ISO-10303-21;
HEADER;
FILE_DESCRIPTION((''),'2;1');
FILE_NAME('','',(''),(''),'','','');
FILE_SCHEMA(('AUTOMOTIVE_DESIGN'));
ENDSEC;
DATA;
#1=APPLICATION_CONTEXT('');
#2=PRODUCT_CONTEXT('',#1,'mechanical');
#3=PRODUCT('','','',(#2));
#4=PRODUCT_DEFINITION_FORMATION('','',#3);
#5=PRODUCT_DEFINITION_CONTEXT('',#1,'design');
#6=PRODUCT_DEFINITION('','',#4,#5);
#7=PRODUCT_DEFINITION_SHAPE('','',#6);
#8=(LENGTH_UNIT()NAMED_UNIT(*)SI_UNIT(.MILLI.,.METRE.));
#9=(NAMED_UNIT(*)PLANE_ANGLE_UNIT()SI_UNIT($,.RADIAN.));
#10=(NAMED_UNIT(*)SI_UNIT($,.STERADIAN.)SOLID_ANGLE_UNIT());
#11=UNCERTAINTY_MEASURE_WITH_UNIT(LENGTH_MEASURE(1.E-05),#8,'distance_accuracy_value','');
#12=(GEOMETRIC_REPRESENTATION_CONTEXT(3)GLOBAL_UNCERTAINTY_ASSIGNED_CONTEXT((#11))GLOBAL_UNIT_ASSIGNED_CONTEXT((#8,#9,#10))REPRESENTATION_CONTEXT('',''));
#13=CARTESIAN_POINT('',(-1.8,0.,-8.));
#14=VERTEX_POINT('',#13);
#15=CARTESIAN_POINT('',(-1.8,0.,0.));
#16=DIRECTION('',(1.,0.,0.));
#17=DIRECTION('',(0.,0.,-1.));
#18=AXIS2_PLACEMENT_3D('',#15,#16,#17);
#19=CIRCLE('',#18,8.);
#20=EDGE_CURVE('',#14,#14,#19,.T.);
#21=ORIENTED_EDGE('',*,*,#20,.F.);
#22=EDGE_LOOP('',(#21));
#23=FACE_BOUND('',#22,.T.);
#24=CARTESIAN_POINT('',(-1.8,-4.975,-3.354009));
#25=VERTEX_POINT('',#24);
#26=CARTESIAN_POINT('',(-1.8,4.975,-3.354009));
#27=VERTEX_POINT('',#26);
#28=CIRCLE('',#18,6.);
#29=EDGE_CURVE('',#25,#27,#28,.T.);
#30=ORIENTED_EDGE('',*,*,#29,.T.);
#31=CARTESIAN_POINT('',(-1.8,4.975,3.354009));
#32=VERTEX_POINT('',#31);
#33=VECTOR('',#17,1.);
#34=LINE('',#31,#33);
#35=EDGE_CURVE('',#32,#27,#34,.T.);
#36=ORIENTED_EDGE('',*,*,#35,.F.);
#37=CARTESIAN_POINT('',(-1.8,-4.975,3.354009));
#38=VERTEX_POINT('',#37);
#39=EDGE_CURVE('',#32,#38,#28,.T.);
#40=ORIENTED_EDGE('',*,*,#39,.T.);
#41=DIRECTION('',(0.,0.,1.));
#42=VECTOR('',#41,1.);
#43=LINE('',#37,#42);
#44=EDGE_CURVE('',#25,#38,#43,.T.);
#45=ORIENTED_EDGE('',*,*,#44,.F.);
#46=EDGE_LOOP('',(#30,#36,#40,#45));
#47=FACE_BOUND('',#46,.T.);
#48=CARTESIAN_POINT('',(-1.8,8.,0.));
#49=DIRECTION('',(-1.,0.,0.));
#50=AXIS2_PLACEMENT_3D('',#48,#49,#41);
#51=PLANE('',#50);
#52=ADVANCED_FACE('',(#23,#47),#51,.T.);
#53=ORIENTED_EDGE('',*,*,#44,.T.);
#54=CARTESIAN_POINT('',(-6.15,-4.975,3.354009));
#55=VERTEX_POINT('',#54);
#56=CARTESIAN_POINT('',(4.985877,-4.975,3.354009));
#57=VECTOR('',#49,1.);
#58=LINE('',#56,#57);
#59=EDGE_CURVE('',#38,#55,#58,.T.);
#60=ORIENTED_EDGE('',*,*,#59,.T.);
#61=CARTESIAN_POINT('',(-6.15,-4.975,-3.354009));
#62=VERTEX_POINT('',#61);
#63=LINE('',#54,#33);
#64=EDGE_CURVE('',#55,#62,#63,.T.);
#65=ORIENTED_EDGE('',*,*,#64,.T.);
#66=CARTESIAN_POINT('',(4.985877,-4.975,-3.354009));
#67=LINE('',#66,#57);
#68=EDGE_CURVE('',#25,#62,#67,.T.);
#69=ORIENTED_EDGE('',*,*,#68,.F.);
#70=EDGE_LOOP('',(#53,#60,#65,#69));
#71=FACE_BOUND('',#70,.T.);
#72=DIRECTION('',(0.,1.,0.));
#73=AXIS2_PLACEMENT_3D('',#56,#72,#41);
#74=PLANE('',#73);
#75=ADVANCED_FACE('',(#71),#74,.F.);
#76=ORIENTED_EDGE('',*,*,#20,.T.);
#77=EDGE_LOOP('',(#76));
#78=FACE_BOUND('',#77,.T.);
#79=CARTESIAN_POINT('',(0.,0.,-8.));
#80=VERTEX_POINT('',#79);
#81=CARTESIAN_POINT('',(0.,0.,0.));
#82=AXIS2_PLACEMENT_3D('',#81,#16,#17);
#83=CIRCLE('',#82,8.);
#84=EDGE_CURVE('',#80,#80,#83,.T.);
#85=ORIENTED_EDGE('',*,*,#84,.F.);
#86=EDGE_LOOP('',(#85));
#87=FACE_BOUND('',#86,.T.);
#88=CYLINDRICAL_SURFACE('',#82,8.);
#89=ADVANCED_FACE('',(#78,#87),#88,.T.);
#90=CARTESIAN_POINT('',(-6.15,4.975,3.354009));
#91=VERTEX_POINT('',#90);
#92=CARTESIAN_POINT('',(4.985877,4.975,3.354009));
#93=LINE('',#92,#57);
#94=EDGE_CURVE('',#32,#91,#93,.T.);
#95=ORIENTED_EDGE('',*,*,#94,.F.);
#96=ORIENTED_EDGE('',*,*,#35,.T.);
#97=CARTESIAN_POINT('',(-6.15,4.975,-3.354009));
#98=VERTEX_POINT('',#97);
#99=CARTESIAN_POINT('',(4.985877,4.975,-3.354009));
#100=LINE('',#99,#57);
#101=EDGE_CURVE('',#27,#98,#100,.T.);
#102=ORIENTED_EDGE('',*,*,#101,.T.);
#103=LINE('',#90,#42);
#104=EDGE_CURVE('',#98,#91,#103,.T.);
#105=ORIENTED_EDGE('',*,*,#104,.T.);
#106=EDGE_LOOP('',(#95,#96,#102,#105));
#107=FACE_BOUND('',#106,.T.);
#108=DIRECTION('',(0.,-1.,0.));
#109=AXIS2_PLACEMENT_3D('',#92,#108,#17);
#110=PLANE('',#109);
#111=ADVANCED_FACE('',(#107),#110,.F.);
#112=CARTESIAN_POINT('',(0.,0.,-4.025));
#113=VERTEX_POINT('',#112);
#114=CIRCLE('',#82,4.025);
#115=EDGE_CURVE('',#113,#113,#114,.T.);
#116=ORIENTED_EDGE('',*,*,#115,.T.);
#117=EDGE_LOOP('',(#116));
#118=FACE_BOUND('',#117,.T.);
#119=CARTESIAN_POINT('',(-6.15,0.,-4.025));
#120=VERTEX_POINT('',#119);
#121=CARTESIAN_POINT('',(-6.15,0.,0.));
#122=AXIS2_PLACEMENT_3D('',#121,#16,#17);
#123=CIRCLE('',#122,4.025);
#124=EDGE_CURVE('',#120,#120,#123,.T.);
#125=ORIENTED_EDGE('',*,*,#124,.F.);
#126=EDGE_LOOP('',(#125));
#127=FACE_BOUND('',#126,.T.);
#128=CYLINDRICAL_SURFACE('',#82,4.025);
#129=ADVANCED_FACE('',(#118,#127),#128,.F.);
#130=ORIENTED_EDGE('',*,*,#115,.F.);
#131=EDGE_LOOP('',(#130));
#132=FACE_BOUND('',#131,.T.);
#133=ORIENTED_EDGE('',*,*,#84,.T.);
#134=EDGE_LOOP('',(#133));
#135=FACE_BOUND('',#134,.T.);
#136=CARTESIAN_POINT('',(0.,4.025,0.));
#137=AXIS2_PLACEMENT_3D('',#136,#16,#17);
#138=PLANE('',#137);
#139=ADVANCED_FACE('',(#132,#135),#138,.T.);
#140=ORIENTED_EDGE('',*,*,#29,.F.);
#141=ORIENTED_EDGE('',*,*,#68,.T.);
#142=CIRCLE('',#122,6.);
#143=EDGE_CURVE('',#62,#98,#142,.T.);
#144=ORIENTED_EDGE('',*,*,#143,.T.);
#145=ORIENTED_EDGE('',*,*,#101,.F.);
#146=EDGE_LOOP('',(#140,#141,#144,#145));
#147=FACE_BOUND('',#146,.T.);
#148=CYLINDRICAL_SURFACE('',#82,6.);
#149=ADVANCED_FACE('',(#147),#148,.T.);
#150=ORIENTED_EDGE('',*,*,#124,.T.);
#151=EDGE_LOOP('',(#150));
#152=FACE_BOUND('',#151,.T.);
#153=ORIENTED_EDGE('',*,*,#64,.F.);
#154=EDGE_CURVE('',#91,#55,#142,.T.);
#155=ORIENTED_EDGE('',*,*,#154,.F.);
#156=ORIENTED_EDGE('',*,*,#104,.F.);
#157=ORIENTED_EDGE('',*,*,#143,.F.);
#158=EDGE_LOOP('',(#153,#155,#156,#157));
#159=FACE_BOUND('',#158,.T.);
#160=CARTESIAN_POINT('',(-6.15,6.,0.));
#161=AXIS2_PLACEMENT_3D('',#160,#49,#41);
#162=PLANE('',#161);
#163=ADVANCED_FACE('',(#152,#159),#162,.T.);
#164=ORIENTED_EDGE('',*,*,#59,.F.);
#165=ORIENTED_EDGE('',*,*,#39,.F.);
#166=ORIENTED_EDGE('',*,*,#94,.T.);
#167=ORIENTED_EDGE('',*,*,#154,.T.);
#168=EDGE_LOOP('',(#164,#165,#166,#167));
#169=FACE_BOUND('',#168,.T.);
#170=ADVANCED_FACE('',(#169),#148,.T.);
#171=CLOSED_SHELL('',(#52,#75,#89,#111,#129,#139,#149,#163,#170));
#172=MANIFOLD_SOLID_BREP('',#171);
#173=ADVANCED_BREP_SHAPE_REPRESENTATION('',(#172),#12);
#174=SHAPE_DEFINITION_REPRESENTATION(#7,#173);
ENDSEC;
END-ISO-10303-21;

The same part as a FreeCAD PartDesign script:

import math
import FreeCAD as App
import Part
import Sketcher

V = App.Vector


def add_polygon(sketch, points):
    """Adds a closed chain of lines whose ends are joined by coincident constraints."""
    first, n = sketch.GeometryCount, len(points)
    for a, b in zip(points, points[1:] + points[:1]):
        sketch.addGeometry(Part.LineSegment(App.Vector(*a, 0), App.Vector(*b, 0)), False)
    for i in range(n):
        sketch.addConstraint(Sketcher.Constraint("Coincident", first + i, 2, first + (i + 1) % n, 1))

doc = App.newDocument("Part")
params = doc.addObject("Spreadsheet::Sheet", "Params")
for row, (alias, value) in enumerate([
    ("sketch1_height", "2 mm"),
    ("sketch1_width", "1.8 mm"),
    ("sketch1_width2", "6.15 mm"),
    ("revolution_angle", "360 deg"),
    ("sketch2_radius", "6 mm"),
    ("pocket1_length", "4.35 mm"),
], start=1):
    params.set(f"A{row}", alias)
    params.set(f"B{row}", "=" + value)
    params.setAlias(f"B{row}", alias)

body = doc.addObject("PartDesign::Body", "Body")

sketch1 = doc.addObject("Sketcher::SketchObject", "Sketch")
body.addObject(sketch1)
sketch1.AttachmentSupport = (doc.XY_Plane, [""])
sketch1.MapMode = "FlatFace"
add_polygon(sketch1, [(-6.15, 4.025), (0, 4.025), (0, 8), (-1.8, 8), (-1.8, 6), (-6.15, 6)])
sketch1.addConstraint([
    Sketcher.Constraint("Horizontal", 0),
    Sketcher.Constraint("Vertical", 1),
    Sketcher.Constraint("Horizontal", 2),
    Sketcher.Constraint("Vertical", 3),
    Sketcher.Constraint("Horizontal", 4),
    Sketcher.Constraint("Vertical", 5),
    Sketcher.Constraint("PointOnObject", 0, 2, -2),
    Sketcher.Constraint("DistanceY", 3, 2, 3, 1, 2.0),
    Sketcher.Constraint("DistanceX", 2, 2, 2, 1, 1.8),
    Sketcher.Constraint("DistanceY", -1, 1, 1, 2, 8.0),
    Sketcher.Constraint("DistanceX", 0, 1, 0, 2, 6.15),
    Sketcher.Constraint("DistanceY", 1, 1, 1, 2, 3.975),
])
sketch1.setExpression("Constraints[13]", "Params.sketch1_height")
sketch1.setExpression("Constraints[14]", "Params.sketch1_width")
sketch1.setExpression("Constraints[16]", "Params.sketch1_width2")
revolution = doc.addObject("PartDesign::Revolution", "Revolution")
body.addObject(revolution)
revolution.Profile = sketch1
revolution.ReferenceAxis = (sketch1, ["H_Axis"])
revolution.setExpression("Angle", "Params.revolution_angle")

sketch2 = doc.addObject("Sketcher::SketchObject", "Sketch001")
body.addObject(sketch2)
sketch2.AttachmentSupport = (doc.YZ_Plane, [""])
sketch2.MapMode = "FlatFace"
sketch2.AttachmentOffset = App.Placement(V(0, 0, -6.15), App.Rotation())
sketch2.addGeometry([
    Part.LineSegment(V(4.975, -3.354009, 0), V(4.975, 3.354009, 0)),
    Part.ArcOfCircle(Part.Circle(V(0, 0, 0), V(0, 0, 1), 6), math.radians(-33.986771), math.radians(33.986771)),
    Part.LineSegment(V(-4.975, 3.354009, 0), V(-4.975, -3.354009, 0)),
    Part.ArcOfCircle(Part.Circle(V(0, 0, 0), V(0, 0, 1), 6), math.radians(146.013229), math.radians(213.986771)),
], False)
sketch2.addConstraint([
    Sketcher.Constraint("Coincident", 0, 1, 1, 1),
    Sketcher.Constraint("Coincident", 1, 2, 0, 2),
    Sketcher.Constraint("Coincident", 2, 1, 3, 1),
    Sketcher.Constraint("Coincident", 3, 2, 2, 2),
    Sketcher.Constraint("Vertical", 0),
    Sketcher.Constraint("Vertical", 2),
    Sketcher.Constraint("Coincident", 1, 3, -1, 1),
    Sketcher.Constraint("Coincident", 3, 3, -1, 1),
    Sketcher.Constraint("Equal", 1, 3),
    Sketcher.Constraint("Horizontal", 1, 2, 2, 1),
    Sketcher.Constraint("Radius", 1, 6.0),
    Sketcher.Constraint("DistanceX", 2, 1, 1, 2, 9.95),
])
sketch2.setExpression("Constraints[10]", "Params.sketch2_radius")
pocket1 = doc.addObject("PartDesign::Pocket", "Pocket")
body.addObject(pocket1)
pocket1.Profile = sketch2
pocket1.setExpression("Length", "Params.pocket1_length")
pocket1.Reversed = True

doc.recompute()
